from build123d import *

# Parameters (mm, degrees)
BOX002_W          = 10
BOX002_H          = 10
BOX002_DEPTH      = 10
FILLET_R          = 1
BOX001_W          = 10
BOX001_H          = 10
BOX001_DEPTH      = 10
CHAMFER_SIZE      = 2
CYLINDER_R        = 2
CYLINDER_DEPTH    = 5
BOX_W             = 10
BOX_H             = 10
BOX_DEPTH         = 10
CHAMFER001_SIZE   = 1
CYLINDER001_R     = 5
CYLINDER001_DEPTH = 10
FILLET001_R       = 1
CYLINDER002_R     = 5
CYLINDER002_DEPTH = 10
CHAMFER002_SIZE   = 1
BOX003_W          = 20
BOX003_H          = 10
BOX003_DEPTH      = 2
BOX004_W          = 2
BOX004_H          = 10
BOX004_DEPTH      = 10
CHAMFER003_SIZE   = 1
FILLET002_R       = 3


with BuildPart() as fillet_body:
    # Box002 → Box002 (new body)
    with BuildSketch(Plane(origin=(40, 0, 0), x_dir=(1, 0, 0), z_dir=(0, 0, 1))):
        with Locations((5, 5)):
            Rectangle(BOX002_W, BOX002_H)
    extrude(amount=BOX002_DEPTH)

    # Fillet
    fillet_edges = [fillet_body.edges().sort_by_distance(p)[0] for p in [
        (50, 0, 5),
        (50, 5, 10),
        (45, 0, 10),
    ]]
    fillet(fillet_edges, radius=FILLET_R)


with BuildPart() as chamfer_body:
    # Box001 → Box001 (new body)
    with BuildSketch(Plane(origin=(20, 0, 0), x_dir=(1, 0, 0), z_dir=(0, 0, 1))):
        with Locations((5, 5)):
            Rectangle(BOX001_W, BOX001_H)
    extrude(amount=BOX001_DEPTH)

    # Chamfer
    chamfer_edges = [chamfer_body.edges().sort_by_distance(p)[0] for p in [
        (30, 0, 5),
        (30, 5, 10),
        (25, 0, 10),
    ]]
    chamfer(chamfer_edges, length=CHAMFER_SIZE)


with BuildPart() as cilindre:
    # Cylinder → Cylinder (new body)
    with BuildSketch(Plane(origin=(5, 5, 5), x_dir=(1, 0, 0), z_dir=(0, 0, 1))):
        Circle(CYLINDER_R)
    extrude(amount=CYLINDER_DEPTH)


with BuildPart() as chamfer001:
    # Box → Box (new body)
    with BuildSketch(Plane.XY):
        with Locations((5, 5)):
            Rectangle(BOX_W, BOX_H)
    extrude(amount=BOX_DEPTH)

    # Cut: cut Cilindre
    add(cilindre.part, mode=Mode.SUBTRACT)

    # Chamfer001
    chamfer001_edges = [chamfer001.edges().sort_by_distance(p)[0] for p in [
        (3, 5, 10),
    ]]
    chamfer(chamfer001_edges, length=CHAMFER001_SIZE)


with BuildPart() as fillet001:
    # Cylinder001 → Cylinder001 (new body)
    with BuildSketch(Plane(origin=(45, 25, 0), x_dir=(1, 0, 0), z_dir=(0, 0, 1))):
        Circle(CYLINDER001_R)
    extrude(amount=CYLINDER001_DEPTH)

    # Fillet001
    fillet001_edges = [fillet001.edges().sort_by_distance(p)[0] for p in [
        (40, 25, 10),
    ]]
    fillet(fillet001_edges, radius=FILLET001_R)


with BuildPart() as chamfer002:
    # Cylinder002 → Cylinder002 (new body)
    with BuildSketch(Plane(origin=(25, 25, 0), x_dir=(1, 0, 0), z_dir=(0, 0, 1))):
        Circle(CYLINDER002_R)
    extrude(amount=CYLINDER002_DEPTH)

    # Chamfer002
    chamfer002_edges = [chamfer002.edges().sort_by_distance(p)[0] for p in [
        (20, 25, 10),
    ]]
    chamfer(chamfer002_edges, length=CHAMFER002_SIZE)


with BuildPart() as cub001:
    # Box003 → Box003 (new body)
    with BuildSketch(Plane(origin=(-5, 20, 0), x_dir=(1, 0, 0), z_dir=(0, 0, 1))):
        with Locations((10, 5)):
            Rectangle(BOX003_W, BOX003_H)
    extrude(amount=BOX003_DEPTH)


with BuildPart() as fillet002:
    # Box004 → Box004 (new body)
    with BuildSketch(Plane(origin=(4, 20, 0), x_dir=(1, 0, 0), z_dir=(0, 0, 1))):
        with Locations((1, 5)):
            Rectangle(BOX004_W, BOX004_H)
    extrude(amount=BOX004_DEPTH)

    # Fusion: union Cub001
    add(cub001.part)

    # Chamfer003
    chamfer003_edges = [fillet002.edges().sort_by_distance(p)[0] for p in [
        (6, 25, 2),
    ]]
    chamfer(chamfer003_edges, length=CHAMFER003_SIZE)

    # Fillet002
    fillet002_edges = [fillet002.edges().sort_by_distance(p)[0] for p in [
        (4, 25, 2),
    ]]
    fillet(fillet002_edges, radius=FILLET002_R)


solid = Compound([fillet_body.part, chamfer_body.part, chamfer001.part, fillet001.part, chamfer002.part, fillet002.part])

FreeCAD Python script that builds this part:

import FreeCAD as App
import Part
import Sketcher

V = App.Vector


def edges_at(feature, points):
    """Names of the edges that pass closest to the given points."""
    edges = feature.Shape.Edges
    near = lambda p: min(range(len(edges)), key=lambda i: edges[i].distToShape(Part.Vertex(*p))[0])
    return sorted({f"Edge{near(p) + 1}" for p in points})


def add_polygon(sketch, points):
    """Adds a closed chain of lines whose ends are joined by coincident constraints."""
    first, n = sketch.GeometryCount, len(points)
    for a, b in zip(points, points[1:] + points[:1]):
        sketch.addGeometry(Part.LineSegment(App.Vector(*a, 0), App.Vector(*b, 0)), False)
    for i in range(n):
        sketch.addConstraint(Sketcher.Constraint("Coincident", first + i, 2, first + (i + 1) % n, 1))

doc = App.newDocument("Part")
params = doc.addObject("Spreadsheet::Sheet", "Params")
for row, (alias, value) in enumerate([
    ("sketch1_width", "10 mm"),
    ("pad1_length", "10 mm"),
    ("fillet_radius", "1 mm"),
    ("sketch2_width", "10 mm"),
    ("pad2_length", "10 mm"),
    ("chamfer_size", "2 mm"),
    ("sketch3_diameter", "4 mm"),
    ("pad3_length", "5 mm"),
    ("sketch4_width", "10 mm"),
    ("pad4_length", "10 mm"),
    ("chamfer2_size", "1 mm"),
    ("sketch5_diameter", "10 mm"),
    ("pad5_length", "10 mm"),
    ("fillet2_radius", "1 mm"),
    ("sketch6_diameter", "10 mm"),
    ("pad6_length", "10 mm"),
    ("chamfer3_size", "1 mm"),
    ("sketch7_width", "20 mm"),
    ("sketch7_height", "10 mm"),
    ("pad7_length", "2 mm"),
    ("sketch8_width", "2 mm"),
    ("sketch8_height", "10 mm"),
    ("pad8_length", "10 mm"),
    ("chamfer4_size", "1 mm"),
    ("fillet3_radius", "3 mm"),
], start=1):
    params.set(f"A{row}", alias)
    params.set(f"B{row}", "=" + value)
    params.setAlias(f"B{row}", alias)

body = doc.addObject("PartDesign::Body", "Body")

# Sketch on XY plane
sketch1 = body.newObject("Sketcher::SketchObject", "Sketch")
sketch1.AttachmentSupport = (doc.getObject("XY_Plane"), [""])
sketch1.MapMode = "FlatFace"
add_polygon(sketch1, [(40, 10), (40, 0), (50, 0), (50, 10)])  # lines 0-3
sketch1.addConstraint([
    Sketcher.Constraint("Vertical", 0),
    Sketcher.Constraint("Horizontal", 1),
    Sketcher.Constraint("Vertical", 2),
    Sketcher.Constraint("Horizontal", 3),
    Sketcher.Constraint("PointOnObject", 0, 2, -1),
    Sketcher.Constraint("Equal", 3, 0),
    Sketcher.Constraint("DistanceX", 1, 1, 1, 2, 10.0),
    Sketcher.Constraint("DistanceX", -1, 1, 0, 2, 40.0),
])
sketch1.setExpression("Constraints[10]", "Params.sketch1_width")
pad1 = body.newObject("PartDesign::Pad", "Pad")
pad1.Profile = sketch1
pad1.setExpression("Length", "Params.pad1_length")
doc.recompute()

fillet = body.newObject("PartDesign::Fillet", "Fillet")
fillet.Base = (pad1, edges_at(pad1, [(50, 0, 5), (50, 5, 10), (45, 0, 10)]))
fillet.setExpression("Radius", "Params.fillet_radius")
body2 = doc.addObject("PartDesign::Body", "Body001")

# Sketch on XY plane
sketch2 = body2.newObject("Sketcher::SketchObject", "Sketch001")
sketch2.AttachmentSupport = (doc.getObject("XY_Plane001"), [""])
sketch2.MapMode = "FlatFace"
add_polygon(sketch2, [(20, 10), (20, 0), (30, 0), (30, 10)])  # lines 0-3
sketch2.addConstraint([
    Sketcher.Constraint("Vertical", 0),
    Sketcher.Constraint("Horizontal", 1),
    Sketcher.Constraint("Vertical", 2),
    Sketcher.Constraint("Horizontal", 3),
    Sketcher.Constraint("PointOnObject", 0, 2, -1),
    Sketcher.Constraint("Equal", 3, 0),
    Sketcher.Constraint("DistanceX", 1, 1, 1, 2, 10.0),
    Sketcher.Constraint("DistanceX", -1, 1, 0, 2, 20.0),
])
sketch2.setExpression("Constraints[10]", "Params.sketch2_width")
pad2 = body2.newObject("PartDesign::Pad", "Pad001")
pad2.Profile = sketch2
pad2.setExpression("Length", "Params.pad2_length")
doc.recompute()

chamfer = body2.newObject("PartDesign::Chamfer", "Chamfer")
chamfer.Base = (pad2, edges_at(pad2, [(30, 0, 5), (30, 5, 10), (25, 0, 10)]))
chamfer.setExpression("Size", "Params.chamfer_size")
body3 = doc.addObject("PartDesign::Body", "Body002")

# Sketch on XY plane
sketch3 = body3.newObject("Sketcher::SketchObject", "Sketch002")
sketch3.AttachmentSupport = (doc.getObject("XY_Plane002"), [""])
sketch3.MapMode = "FlatFace"
sketch3.AttachmentOffset = App.Placement(V(0, 0, 5), App.Rotation())
sketch3.addGeometry(Part.Circle(V(5, 5, 0), V(0, 0, 1), 2), False)
sketch3.addConstraint([
    Sketcher.Constraint("Diameter", 0, 4.0),
    Sketcher.Constraint("DistanceX", -1, 1, 0, 3, 5.0),
    Sketcher.Constraint("DistanceY", -1, 1, 0, 3, 5.0),
])
sketch3.setExpression("Constraints[0]", "Params.sketch3_diameter")
pad3 = body3.newObject("PartDesign::Pad", "Pad002")
pad3.Profile = sketch3
pad3.setExpression("Length", "Params.pad3_length")
body4 = doc.addObject("PartDesign::Body", "Body003")

# Sketch on XY plane
sketch4 = body4.newObject("Sketcher::SketchObject", "Sketch003")
sketch4.AttachmentSupport = (doc.getObject("XY_Plane003"), [""])
sketch4.MapMode = "FlatFace"
add_polygon(sketch4, [(0, 10), (0, 0), (10, 0), (10, 10)])  # lines 0-3
sketch4.addConstraint([
    Sketcher.Constraint("Vertical", 0),
    Sketcher.Constraint("Horizontal", 1),
    Sketcher.Constraint("Vertical", 2),
    Sketcher.Constraint("Horizontal", 3),
    Sketcher.Constraint("Coincident", 0, 2, -1, 1),
    Sketcher.Constraint("Equal", 3, 0),
    Sketcher.Constraint("DistanceX", 1, 1, 1, 2, 10.0),
])
sketch4.setExpression("Constraints[10]", "Params.sketch4_width")
pad4 = body4.newObject("PartDesign::Pad", "Pad003")
pad4.Profile = sketch4
pad4.setExpression("Length", "Params.pad4_length")
doc.recompute()

boolean = body4.newObject("PartDesign::Boolean", "Boolean")
boolean.Type = "Cut"
boolean.addObjects([body3])
doc.recompute()

chamfer2 = body4.newObject("PartDesign::Chamfer", "Chamfer001")
chamfer2.Base = (boolean, edges_at(boolean, [(3, 5, 10)]))
chamfer2.setExpression("Size", "Params.chamfer2_size")
body5 = doc.addObject("PartDesign::Body", "Body004")

# Sketch on XY plane
sketch5 = body5.newObject("Sketcher::SketchObject", "Sketch004")
sketch5.AttachmentSupport = (doc.getObject("XY_Plane004"), [""])
sketch5.MapMode = "FlatFace"
sketch5.addGeometry(Part.Circle(V(45, 25, 0), V(0, 0, 1), 5), False)
sketch5.addConstraint([
    Sketcher.Constraint("Diameter", 0, 10.0),
    Sketcher.Constraint("DistanceX", -1, 1, 0, 3, 45.0),
    Sketcher.Constraint("DistanceY", -1, 1, 0, 3, 25.0),
])
sketch5.setExpression("Constraints[0]", "Params.sketch5_diameter")
pad5 = body5.newObject("PartDesign::Pad", "Pad004")
pad5.Profile = sketch5
pad5.setExpression("Length", "Params.pad5_length")
doc.recompute()

fillet2 = body5.newObject("PartDesign::Fillet", "Fillet001")
fillet2.Base = (pad5, edges_at(pad5, [(40, 25, 10)]))
fillet2.setExpression("Radius", "Params.fillet2_radius")
body6 = doc.addObject("PartDesign::Body", "Body005")

# Sketch on XY plane
sketch6 = body6.newObject("Sketcher::SketchObject", "Sketch005")
sketch6.AttachmentSupport = (doc.getObject("XY_Plane005"), [""])
sketch6.MapMode = "FlatFace"
sketch6.addGeometry(Part.Circle(V(25, 25, 0), V(0, 0, 1), 5), False)
sketch6.addConstraint([
    Sketcher.Constraint("Diameter", 0, 10.0),
    Sketcher.Constraint("DistanceX", -1, 1, 0, 3, 25.0),
    Sketcher.Constraint("DistanceY", -1, 1, 0, 3, 25.0),
])
sketch6.setExpression("Constraints[0]", "Params.sketch6_diameter")
pad6 = body6.newObject("PartDesign::Pad", "Pad005")
pad6.Profile = sketch6
pad6.setExpression("Length", "Params.pad6_length")
doc.recompute()

chamfer3 = body6.newObject("PartDesign::Chamfer", "Chamfer002")
chamfer3.Base = (pad6, edges_at(pad6, [(20, 25, 10)]))
chamfer3.setExpression("Size", "Params.chamfer3_size")
body7 = doc.addObject("PartDesign::Body", "Body006")

# Sketch on XY plane
sketch7 = body7.newObject("Sketcher::SketchObject", "Sketch006")
sketch7.AttachmentSupport = (doc.getObject("XY_Plane006"), [""])
sketch7.MapMode = "FlatFace"
add_polygon(sketch7, [(-5, 30), (-5, 20), (15, 20), (15, 30)])  # lines 0-3
sketch7.addConstraint([
    Sketcher.Constraint("Vertical", 0),
    Sketcher.Constraint("Horizontal", 1),
    Sketcher.Constraint("Vertical", 2),
    Sketcher.Constraint("Horizontal", 3),
    Sketcher.Constraint("DistanceX", 1, 1, 1, 2, 20.0),
    Sketcher.Constraint("DistanceY", 0, 2, 0, 1, 10.0),
    Sketcher.Constraint("DistanceX", 0, 2, -1, 1, 5.0),
    Sketcher.Constraint("DistanceY", -1, 1, 0, 2, 20.0),
])
sketch7.setExpression("Constraints[8]", "Params.sketch7_width")
sketch7.setExpression("Constraints[9]", "Params.sketch7_height")
pad7 = body7.newObject("PartDesign::Pad", "Pad006")
pad7.Profile = sketch7
pad7.setExpression("Length", "Params.pad7_length")
body8 = doc.addObject("PartDesign::Body", "Body007")

# Sketch on XY plane
sketch8 = body8.newObject("Sketcher::SketchObject", "Sketch007")
sketch8.AttachmentSupport = (doc.getObject("XY_Plane007"), [""])
sketch8.MapMode = "FlatFace"
add_polygon(sketch8, [(4, 30), (4, 20), (6, 20), (6, 30)])  # lines 0-3
sketch8.addConstraint([
    Sketcher.Constraint("Vertical", 0),
    Sketcher.Constraint("Horizontal", 1),
    Sketcher.Constraint("Vertical", 2),
    Sketcher.Constraint("Horizontal", 3),
    Sketcher.Constraint("DistanceX", 1, 1, 1, 2, 2.0),
    Sketcher.Constraint("DistanceY", 0, 2, 0, 1, 10.0),
    Sketcher.Constraint("DistanceX", -1, 1, 0, 2, 4.0),
    Sketcher.Constraint("DistanceY", -1, 1, 0, 2, 20.0),
])
sketch8.setExpression("Constraints[8]", "Params.sketch8_width")
sketch8.setExpression("Constraints[9]", "Params.sketch8_height")
pad8 = body8.newObject("PartDesign::Pad", "Pad007")
pad8.Profile = sketch8
pad8.setExpression("Length", "Params.pad8_length")
doc.recompute()

boolean2 = body8.newObject("PartDesign::Boolean", "Boolean001")
boolean2.Type = "Fuse"
boolean2.addObjects([body7])
doc.recompute()

chamfer4 = body8.newObject("PartDesign::Chamfer", "Chamfer003")
chamfer4.Base = (boolean2, edges_at(boolean2, [(6, 25, 2)]))
chamfer4.setExpression("Size", "Params.chamfer4_size")
doc.recompute()

fillet3 = body8.newObject("PartDesign::Fillet", "Fillet002")
fillet3.Base = (chamfer4, edges_at(chamfer4, [(4, 25, 2)]))
fillet3.setExpression("Radius", "Params.fillet3_radius")

doc.recompute()
